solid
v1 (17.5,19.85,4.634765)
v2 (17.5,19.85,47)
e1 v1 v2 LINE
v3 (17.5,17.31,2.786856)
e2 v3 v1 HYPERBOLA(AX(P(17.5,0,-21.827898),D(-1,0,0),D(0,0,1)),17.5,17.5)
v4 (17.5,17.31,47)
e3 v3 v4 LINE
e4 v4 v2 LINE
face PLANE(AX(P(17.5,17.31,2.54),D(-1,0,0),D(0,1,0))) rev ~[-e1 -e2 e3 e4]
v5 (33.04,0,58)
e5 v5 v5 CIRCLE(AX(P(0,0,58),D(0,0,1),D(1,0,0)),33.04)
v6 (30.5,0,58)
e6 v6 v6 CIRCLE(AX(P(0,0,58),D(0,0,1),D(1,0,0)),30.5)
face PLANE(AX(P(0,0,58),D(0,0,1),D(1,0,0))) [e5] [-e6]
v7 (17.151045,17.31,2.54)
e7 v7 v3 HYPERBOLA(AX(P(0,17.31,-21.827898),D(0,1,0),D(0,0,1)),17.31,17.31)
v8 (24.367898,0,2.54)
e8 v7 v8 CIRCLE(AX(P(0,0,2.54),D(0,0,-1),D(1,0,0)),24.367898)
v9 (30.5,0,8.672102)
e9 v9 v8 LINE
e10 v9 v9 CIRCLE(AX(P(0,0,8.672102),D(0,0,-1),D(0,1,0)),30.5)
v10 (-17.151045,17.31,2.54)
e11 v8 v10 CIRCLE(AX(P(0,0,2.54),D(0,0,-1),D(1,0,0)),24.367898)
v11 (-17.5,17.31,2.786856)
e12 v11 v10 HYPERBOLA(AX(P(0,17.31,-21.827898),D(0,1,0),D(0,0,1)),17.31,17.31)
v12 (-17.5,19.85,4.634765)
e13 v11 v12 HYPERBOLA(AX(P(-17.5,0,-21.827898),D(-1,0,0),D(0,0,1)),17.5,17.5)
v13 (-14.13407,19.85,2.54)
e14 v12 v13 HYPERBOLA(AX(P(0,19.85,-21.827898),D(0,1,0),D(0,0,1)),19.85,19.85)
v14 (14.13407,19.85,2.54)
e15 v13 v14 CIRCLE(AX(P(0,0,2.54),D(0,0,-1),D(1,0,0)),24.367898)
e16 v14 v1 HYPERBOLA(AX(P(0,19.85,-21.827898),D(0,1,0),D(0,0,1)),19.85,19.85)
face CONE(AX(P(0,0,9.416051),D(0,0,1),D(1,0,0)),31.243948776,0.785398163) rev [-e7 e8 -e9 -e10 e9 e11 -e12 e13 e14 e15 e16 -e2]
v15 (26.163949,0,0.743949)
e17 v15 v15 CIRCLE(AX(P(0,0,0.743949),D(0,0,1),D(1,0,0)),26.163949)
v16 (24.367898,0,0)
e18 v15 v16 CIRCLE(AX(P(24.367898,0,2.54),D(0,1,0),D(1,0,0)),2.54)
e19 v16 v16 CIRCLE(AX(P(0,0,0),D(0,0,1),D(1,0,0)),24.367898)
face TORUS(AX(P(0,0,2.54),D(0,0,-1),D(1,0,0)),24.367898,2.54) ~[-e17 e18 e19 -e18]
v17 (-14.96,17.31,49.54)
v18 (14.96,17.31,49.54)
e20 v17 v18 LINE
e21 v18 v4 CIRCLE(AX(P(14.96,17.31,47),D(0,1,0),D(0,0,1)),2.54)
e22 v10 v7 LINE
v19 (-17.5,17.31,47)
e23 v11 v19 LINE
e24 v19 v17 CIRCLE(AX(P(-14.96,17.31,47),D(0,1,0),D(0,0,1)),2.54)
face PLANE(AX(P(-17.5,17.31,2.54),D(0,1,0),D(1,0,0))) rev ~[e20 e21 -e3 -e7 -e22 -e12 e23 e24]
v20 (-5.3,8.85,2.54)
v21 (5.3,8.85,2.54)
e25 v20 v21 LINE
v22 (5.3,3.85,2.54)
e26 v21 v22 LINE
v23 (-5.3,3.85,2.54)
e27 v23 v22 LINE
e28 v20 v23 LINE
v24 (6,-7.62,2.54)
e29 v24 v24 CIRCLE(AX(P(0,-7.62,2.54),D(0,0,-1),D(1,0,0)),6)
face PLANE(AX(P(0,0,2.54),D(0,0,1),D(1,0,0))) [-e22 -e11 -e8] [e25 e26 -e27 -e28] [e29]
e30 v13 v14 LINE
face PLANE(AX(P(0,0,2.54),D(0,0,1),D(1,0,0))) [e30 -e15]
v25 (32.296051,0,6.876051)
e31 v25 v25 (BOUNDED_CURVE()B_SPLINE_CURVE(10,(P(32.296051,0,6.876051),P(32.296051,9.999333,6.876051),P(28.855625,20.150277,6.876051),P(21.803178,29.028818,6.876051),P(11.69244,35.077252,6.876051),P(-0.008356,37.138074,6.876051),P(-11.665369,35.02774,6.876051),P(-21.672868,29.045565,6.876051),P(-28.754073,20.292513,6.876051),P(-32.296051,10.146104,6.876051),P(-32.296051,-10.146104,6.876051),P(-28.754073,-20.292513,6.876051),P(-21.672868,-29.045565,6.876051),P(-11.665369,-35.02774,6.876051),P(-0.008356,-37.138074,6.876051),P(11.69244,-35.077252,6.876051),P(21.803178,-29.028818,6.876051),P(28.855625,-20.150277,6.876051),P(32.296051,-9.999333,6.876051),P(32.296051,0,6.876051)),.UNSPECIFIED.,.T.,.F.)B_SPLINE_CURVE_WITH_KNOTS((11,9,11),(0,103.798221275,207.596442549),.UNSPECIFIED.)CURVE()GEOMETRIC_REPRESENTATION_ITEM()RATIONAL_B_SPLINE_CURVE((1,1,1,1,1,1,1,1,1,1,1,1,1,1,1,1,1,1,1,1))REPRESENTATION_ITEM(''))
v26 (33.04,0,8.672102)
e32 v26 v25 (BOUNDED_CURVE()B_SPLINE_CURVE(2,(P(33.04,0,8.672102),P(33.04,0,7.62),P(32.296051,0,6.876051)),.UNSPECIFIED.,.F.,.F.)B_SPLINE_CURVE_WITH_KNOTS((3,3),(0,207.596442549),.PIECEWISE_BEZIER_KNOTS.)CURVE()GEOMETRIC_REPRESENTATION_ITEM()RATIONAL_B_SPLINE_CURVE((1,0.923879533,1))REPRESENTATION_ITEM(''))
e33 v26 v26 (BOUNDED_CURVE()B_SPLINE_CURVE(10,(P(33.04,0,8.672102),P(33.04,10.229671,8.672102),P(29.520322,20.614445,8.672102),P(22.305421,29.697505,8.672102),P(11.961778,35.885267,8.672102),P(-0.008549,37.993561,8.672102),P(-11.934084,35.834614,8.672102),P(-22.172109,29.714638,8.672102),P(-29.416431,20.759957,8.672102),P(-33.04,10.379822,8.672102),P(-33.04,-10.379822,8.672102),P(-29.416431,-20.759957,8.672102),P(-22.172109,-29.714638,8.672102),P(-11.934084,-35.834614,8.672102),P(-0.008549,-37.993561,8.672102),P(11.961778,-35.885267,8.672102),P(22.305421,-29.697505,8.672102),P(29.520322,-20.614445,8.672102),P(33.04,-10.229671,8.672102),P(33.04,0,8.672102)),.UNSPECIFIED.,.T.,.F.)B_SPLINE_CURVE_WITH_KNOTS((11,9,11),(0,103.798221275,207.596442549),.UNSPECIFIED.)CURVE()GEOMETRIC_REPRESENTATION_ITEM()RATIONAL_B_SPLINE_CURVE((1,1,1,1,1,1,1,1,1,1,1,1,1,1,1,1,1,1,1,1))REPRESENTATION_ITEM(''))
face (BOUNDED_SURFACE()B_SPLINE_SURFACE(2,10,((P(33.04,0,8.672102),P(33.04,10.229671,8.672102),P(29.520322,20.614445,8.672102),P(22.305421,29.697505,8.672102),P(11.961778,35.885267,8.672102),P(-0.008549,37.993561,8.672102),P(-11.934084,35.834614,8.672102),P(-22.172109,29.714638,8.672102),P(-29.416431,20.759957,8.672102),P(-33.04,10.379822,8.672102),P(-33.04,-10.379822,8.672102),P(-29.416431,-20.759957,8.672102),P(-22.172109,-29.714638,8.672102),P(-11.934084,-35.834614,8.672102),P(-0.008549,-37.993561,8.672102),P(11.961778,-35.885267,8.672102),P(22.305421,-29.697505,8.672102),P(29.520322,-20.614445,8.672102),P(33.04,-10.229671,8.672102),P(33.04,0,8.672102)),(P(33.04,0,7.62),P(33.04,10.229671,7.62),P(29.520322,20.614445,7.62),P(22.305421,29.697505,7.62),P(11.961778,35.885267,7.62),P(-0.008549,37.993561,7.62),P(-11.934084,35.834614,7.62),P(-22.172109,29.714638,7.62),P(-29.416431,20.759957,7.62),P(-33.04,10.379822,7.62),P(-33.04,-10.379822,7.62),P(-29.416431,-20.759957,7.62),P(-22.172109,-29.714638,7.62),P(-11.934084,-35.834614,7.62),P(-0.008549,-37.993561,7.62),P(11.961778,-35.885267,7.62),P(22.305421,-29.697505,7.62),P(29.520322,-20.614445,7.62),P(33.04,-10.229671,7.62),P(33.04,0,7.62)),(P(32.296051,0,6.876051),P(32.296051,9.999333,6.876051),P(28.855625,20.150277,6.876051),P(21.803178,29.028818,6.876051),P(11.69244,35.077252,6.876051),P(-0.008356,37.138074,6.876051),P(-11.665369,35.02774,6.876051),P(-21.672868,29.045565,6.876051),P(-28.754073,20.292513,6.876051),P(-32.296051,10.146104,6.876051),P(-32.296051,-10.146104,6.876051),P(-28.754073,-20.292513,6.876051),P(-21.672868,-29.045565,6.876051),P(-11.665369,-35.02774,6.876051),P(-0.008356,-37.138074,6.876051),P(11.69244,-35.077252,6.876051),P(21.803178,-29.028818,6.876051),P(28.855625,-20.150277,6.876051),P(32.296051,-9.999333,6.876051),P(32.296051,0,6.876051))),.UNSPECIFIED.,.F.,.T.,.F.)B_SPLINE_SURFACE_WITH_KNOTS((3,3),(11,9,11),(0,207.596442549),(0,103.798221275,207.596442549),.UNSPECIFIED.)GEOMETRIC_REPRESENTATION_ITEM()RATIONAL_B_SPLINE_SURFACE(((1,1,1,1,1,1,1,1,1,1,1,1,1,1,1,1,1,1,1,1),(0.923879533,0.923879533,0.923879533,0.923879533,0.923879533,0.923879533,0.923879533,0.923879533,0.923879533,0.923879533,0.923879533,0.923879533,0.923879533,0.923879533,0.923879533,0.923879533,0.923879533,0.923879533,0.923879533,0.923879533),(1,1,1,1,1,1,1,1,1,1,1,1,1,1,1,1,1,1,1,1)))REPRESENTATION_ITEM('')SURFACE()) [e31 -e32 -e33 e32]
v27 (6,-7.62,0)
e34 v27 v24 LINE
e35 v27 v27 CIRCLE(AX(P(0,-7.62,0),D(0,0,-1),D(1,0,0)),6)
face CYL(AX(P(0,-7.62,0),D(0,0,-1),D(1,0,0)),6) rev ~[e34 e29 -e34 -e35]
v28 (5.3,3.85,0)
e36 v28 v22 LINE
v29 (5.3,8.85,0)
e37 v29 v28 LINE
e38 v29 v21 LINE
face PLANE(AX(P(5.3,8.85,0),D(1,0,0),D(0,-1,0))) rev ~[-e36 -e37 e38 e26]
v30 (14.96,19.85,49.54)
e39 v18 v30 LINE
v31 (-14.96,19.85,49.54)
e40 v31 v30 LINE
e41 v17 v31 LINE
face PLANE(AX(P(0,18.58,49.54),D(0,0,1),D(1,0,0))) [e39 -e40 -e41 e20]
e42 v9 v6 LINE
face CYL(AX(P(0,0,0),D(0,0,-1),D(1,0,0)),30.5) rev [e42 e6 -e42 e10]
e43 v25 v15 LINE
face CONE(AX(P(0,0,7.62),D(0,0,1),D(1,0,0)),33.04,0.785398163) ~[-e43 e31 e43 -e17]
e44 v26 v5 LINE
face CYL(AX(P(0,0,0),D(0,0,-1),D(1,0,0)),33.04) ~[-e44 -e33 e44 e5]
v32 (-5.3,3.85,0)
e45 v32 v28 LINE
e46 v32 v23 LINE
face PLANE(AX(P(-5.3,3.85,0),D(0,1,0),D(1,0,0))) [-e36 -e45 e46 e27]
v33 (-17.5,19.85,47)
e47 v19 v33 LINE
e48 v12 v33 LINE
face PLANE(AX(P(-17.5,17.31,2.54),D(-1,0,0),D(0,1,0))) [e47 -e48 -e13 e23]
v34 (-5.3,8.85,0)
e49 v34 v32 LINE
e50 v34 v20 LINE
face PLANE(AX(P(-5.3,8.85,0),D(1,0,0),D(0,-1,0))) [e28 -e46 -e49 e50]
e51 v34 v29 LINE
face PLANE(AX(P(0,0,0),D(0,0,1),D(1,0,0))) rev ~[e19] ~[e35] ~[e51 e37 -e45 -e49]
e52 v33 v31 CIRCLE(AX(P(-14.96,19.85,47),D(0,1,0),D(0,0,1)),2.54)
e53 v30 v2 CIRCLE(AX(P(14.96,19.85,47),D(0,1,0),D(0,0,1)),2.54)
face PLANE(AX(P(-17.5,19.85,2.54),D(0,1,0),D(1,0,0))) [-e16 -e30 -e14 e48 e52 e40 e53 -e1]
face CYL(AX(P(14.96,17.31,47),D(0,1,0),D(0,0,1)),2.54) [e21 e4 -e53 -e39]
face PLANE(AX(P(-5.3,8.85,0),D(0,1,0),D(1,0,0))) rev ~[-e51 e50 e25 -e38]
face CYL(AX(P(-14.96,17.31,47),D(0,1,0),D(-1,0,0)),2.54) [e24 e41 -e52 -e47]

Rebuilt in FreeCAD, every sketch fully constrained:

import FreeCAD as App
import Part
import Sketcher

V = App.Vector


def edges_at(feature, points):
    """Names of the edges that pass closest to the given points."""
    edges = feature.Shape.Edges
    near = lambda p: min(range(len(edges)), key=lambda i: edges[i].distToShape(Part.Vertex(*p))[0])
    return sorted({f"Edge{near(p) + 1}" for p in points})


def faces_at(feature, points):
    """Names of the faces that lie closest to the given points."""
    faces = feature.Shape.Faces
    near = lambda p: min(range(len(faces)), key=lambda i: faces[i].distToShape(Part.Vertex(*p))[0])
    return sorted({f"Face{near(p) + 1}" for p in points})

doc = App.newDocument("Part")
params = doc.addObject("Spreadsheet::Sheet", "Params")
for row, (alias, value) in enumerate([
    ("sketch1_diameter", "66.08 mm"),
    ("pad1_length", "58 mm"),
    ("chamfer_size", "7.62 mm"),
    ("thickness_wall", "2.54 mm"),
    ("fillet_radius", "2.54 mm"),
    ("sketch2_diameter", "12 mm"),
    ("sketch2_height", "5 mm"),
    ("sketch2_width", "10.6 mm"),
    ("sketch3_width", "35 mm"),
    ("sketch3_height", "2.54 mm"),
    ("pad2_length", "47 mm"),
    ("fillet2_radius", "2.54 mm"),
], start=1):
    params.set(f"A{row}", alias)
    params.set(f"B{row}", "=" + value)
    params.setAlias(f"B{row}", alias)

body = doc.addObject("PartDesign::Body", "Body")

# Sketch on XY plane
sketch1 = body.newObject("Sketcher::SketchObject", "Sketch")
sketch1.AttachmentSupport = (doc.getObject("XY_Plane"), [""])
sketch1.MapMode = "FlatFace"
sketch1.addGeometry(Part.Circle(V(0, 0, 0), V(0, 0, 1), 33), False)
sketch1.addConstraint(Sketcher.Constraint("Coincident", 0, 3, -1, 1))
sketch1.addConstraint(Sketcher.Constraint("Diameter", 0, 66.08))
sketch1.setExpression("Constraints[1]", "Params.sketch1_diameter")
pad1 = body.newObject("PartDesign::Pad", "Pad")
pad1.Profile = sketch1
pad1.setExpression("Length", "Params.pad1_length")
doc.recompute()

chamfer = body.newObject("PartDesign::Chamfer", "Chamfer")
chamfer.Base = (pad1, edges_at(pad1, [(-33.04, 0, 0)]))
chamfer.setExpression("Size", "Params.chamfer_size")
doc.recompute()

thickness = body.newObject("PartDesign::Thickness", "Thickness")
thickness.Base = (chamfer, faces_at(chamfer, [(0, 0, 58)]))
thickness.setExpression("Value", "Params.thickness_wall")
thickness.Reversed = True
thickness.Join = "Arc"
doc.recompute()

fillet = body.newObject("PartDesign::Fillet", "Fillet")
fillet.Base = (thickness, edges_at(thickness, [(-33.04, 0, 7.62), (-25.42, 0, 0)]))
fillet.setExpression("Radius", "Params.fillet_radius")

# Sketch on XY plane
sketch2 = body.newObject("Sketcher::SketchObject", "Sketch001")
sketch2.AttachmentSupport = (doc.getObject("XY_Plane"), [""])
sketch2.MapMode = "FlatFace"
sketch2.addGeometry(Part.Circle(V(0, -8, 0), V(0, 0, 1), 6), False)
sketch2.addGeometry(Part.LineSegment(V(-5, 4, 0), V(-5, 9, 0)), False)
sketch2.addGeometry(Part.LineSegment(V(-5, 9, 0), V(5, 9, 0)), False)
sketch2.addGeometry(Part.LineSegment(V(5, 9, 0), V(5, 4, 0)), False)
sketch2.addGeometry(Part.LineSegment(V(5, 4, 0), V(-5, 4, 0)), False)
sketch2.addConstraint(Sketcher.Constraint("Coincident", 1, 2, 2, 1))
sketch2.addConstraint(Sketcher.Constraint("Coincident", 2, 2, 3, 1))
sketch2.addConstraint(Sketcher.Constraint("Coincident", 3, 2, 4, 1))
sketch2.addConstraint(Sketcher.Constraint("Coincident", 4, 2, 1, 1))
sketch2.addConstraint(Sketcher.Constraint("Vertical", 1))
sketch2.addConstraint(Sketcher.Constraint("Horizontal", 2))
sketch2.addConstraint(Sketcher.Constraint("Vertical", 3))
sketch2.addConstraint(Sketcher.Constraint("Horizontal", 4))
sketch2.addConstraint(Sketcher.Constraint("PointOnObject", 0, 3, -2))
sketch2.addConstraint(Sketcher.Constraint("Diameter", 0, 12.0))
sketch2.addConstraint(Sketcher.Constraint("DistanceY", 1, 1, 1, 2, 5.0))
sketch2.addConstraint(Sketcher.Constraint("DistanceX", 2, 1, 2, 2, 10.6))
sketch2.addConstraint(Sketcher.Constraint("DistanceX", 1, 2, -1, 1, 5.3))
sketch2.addConstraint(Sketcher.Constraint("DistanceY", 0, 3, -1, 1, 7.62))
sketch2.addConstraint(Sketcher.Constraint("DistanceY", -1, 1, 1, 2, 8.85))
sketch2.setExpression("Constraints[9]", "Params.sketch2_diameter")
sketch2.setExpression("Constraints[10]", "Params.sketch2_height")
sketch2.setExpression("Constraints[11]", "Params.sketch2_width")
pocket1 = body.newObject("PartDesign::Pocket", "Pocket")
pocket1.Profile = sketch2
pocket1.Type = "ThroughAll"
pocket1.Reversed = True

# Sketch on XY plane
sketch3 = body.newObject("Sketcher::SketchObject", "Sketch002")
sketch3.AttachmentSupport = (doc.getObject("XY_Plane"), [""])
sketch3.MapMode = "FlatFace"
sketch3.AttachmentOffset = App.Placement(V(0, 0, 2.54), App.Rotation())
sketch3.addGeometry(Part.LineSegment(V(-17.5, 19.9, 0), V(-17.5, 17.3, 0)), False)
sketch3.addGeometry(Part.LineSegment(V(-17.5, 17.3, 0), V(17.5, 17.3, 0)), False)
sketch3.addGeometry(Part.LineSegment(V(17.5, 17.3, 0), V(17.5, 19.9, 0)), False)
sketch3.addGeometry(Part.LineSegment(V(17.5, 19.9, 0), V(-17.5, 19.9, 0)), False)
sketch3.addConstraint(Sketcher.Constraint("Coincident", 0, 2, 1, 1))
sketch3.addConstraint(Sketcher.Constraint("Coincident", 1, 2, 2, 1))
sketch3.addConstraint(Sketcher.Constraint("Coincident", 2, 2, 3, 1))
sketch3.addConstraint(Sketcher.Constraint("Coincident", 3, 2, 0, 1))
sketch3.addConstraint(Sketcher.Constraint("Vertical", 0))
sketch3.addConstraint(Sketcher.Constraint("Horizontal", 1))
sketch3.addConstraint(Sketcher.Constraint("Vertical", 2))
sketch3.addConstraint(Sketcher.Constraint("Horizontal", 3))
sketch3.addConstraint(Sketcher.Constraint("DistanceX", 1, 1, 1, 2, 35.0))
sketch3.addConstraint(Sketcher.Constraint("DistanceY", 0, 2, 0, 1, 2.54))
sketch3.addConstraint(Sketcher.Constraint("DistanceX", 0, 2, -1, 1, 17.5))
sketch3.addConstraint(Sketcher.Constraint("DistanceY", -1, 1, 0, 2, 17.31))
sketch3.setExpression("Constraints[8]", "Params.sketch3_width")
sketch3.setExpression("Constraints[9]", "Params.sketch3_height")
pad2 = body.newObject("PartDesign::Pad", "Pad001")
pad2.Profile = sketch3
pad2.setExpression("Length", "Params.pad2_length")
doc.recompute()

fillet2 = body.newObject("PartDesign::Fillet", "Fillet001")
fillet2.Base = (pad2, edges_at(pad2, [(-17.5, 18.58, 49.54), (17.5, 18.58, 49.54)]))
fillet2.setExpression("Radius", "Params.fillet2_radius")

doc.recompute()
